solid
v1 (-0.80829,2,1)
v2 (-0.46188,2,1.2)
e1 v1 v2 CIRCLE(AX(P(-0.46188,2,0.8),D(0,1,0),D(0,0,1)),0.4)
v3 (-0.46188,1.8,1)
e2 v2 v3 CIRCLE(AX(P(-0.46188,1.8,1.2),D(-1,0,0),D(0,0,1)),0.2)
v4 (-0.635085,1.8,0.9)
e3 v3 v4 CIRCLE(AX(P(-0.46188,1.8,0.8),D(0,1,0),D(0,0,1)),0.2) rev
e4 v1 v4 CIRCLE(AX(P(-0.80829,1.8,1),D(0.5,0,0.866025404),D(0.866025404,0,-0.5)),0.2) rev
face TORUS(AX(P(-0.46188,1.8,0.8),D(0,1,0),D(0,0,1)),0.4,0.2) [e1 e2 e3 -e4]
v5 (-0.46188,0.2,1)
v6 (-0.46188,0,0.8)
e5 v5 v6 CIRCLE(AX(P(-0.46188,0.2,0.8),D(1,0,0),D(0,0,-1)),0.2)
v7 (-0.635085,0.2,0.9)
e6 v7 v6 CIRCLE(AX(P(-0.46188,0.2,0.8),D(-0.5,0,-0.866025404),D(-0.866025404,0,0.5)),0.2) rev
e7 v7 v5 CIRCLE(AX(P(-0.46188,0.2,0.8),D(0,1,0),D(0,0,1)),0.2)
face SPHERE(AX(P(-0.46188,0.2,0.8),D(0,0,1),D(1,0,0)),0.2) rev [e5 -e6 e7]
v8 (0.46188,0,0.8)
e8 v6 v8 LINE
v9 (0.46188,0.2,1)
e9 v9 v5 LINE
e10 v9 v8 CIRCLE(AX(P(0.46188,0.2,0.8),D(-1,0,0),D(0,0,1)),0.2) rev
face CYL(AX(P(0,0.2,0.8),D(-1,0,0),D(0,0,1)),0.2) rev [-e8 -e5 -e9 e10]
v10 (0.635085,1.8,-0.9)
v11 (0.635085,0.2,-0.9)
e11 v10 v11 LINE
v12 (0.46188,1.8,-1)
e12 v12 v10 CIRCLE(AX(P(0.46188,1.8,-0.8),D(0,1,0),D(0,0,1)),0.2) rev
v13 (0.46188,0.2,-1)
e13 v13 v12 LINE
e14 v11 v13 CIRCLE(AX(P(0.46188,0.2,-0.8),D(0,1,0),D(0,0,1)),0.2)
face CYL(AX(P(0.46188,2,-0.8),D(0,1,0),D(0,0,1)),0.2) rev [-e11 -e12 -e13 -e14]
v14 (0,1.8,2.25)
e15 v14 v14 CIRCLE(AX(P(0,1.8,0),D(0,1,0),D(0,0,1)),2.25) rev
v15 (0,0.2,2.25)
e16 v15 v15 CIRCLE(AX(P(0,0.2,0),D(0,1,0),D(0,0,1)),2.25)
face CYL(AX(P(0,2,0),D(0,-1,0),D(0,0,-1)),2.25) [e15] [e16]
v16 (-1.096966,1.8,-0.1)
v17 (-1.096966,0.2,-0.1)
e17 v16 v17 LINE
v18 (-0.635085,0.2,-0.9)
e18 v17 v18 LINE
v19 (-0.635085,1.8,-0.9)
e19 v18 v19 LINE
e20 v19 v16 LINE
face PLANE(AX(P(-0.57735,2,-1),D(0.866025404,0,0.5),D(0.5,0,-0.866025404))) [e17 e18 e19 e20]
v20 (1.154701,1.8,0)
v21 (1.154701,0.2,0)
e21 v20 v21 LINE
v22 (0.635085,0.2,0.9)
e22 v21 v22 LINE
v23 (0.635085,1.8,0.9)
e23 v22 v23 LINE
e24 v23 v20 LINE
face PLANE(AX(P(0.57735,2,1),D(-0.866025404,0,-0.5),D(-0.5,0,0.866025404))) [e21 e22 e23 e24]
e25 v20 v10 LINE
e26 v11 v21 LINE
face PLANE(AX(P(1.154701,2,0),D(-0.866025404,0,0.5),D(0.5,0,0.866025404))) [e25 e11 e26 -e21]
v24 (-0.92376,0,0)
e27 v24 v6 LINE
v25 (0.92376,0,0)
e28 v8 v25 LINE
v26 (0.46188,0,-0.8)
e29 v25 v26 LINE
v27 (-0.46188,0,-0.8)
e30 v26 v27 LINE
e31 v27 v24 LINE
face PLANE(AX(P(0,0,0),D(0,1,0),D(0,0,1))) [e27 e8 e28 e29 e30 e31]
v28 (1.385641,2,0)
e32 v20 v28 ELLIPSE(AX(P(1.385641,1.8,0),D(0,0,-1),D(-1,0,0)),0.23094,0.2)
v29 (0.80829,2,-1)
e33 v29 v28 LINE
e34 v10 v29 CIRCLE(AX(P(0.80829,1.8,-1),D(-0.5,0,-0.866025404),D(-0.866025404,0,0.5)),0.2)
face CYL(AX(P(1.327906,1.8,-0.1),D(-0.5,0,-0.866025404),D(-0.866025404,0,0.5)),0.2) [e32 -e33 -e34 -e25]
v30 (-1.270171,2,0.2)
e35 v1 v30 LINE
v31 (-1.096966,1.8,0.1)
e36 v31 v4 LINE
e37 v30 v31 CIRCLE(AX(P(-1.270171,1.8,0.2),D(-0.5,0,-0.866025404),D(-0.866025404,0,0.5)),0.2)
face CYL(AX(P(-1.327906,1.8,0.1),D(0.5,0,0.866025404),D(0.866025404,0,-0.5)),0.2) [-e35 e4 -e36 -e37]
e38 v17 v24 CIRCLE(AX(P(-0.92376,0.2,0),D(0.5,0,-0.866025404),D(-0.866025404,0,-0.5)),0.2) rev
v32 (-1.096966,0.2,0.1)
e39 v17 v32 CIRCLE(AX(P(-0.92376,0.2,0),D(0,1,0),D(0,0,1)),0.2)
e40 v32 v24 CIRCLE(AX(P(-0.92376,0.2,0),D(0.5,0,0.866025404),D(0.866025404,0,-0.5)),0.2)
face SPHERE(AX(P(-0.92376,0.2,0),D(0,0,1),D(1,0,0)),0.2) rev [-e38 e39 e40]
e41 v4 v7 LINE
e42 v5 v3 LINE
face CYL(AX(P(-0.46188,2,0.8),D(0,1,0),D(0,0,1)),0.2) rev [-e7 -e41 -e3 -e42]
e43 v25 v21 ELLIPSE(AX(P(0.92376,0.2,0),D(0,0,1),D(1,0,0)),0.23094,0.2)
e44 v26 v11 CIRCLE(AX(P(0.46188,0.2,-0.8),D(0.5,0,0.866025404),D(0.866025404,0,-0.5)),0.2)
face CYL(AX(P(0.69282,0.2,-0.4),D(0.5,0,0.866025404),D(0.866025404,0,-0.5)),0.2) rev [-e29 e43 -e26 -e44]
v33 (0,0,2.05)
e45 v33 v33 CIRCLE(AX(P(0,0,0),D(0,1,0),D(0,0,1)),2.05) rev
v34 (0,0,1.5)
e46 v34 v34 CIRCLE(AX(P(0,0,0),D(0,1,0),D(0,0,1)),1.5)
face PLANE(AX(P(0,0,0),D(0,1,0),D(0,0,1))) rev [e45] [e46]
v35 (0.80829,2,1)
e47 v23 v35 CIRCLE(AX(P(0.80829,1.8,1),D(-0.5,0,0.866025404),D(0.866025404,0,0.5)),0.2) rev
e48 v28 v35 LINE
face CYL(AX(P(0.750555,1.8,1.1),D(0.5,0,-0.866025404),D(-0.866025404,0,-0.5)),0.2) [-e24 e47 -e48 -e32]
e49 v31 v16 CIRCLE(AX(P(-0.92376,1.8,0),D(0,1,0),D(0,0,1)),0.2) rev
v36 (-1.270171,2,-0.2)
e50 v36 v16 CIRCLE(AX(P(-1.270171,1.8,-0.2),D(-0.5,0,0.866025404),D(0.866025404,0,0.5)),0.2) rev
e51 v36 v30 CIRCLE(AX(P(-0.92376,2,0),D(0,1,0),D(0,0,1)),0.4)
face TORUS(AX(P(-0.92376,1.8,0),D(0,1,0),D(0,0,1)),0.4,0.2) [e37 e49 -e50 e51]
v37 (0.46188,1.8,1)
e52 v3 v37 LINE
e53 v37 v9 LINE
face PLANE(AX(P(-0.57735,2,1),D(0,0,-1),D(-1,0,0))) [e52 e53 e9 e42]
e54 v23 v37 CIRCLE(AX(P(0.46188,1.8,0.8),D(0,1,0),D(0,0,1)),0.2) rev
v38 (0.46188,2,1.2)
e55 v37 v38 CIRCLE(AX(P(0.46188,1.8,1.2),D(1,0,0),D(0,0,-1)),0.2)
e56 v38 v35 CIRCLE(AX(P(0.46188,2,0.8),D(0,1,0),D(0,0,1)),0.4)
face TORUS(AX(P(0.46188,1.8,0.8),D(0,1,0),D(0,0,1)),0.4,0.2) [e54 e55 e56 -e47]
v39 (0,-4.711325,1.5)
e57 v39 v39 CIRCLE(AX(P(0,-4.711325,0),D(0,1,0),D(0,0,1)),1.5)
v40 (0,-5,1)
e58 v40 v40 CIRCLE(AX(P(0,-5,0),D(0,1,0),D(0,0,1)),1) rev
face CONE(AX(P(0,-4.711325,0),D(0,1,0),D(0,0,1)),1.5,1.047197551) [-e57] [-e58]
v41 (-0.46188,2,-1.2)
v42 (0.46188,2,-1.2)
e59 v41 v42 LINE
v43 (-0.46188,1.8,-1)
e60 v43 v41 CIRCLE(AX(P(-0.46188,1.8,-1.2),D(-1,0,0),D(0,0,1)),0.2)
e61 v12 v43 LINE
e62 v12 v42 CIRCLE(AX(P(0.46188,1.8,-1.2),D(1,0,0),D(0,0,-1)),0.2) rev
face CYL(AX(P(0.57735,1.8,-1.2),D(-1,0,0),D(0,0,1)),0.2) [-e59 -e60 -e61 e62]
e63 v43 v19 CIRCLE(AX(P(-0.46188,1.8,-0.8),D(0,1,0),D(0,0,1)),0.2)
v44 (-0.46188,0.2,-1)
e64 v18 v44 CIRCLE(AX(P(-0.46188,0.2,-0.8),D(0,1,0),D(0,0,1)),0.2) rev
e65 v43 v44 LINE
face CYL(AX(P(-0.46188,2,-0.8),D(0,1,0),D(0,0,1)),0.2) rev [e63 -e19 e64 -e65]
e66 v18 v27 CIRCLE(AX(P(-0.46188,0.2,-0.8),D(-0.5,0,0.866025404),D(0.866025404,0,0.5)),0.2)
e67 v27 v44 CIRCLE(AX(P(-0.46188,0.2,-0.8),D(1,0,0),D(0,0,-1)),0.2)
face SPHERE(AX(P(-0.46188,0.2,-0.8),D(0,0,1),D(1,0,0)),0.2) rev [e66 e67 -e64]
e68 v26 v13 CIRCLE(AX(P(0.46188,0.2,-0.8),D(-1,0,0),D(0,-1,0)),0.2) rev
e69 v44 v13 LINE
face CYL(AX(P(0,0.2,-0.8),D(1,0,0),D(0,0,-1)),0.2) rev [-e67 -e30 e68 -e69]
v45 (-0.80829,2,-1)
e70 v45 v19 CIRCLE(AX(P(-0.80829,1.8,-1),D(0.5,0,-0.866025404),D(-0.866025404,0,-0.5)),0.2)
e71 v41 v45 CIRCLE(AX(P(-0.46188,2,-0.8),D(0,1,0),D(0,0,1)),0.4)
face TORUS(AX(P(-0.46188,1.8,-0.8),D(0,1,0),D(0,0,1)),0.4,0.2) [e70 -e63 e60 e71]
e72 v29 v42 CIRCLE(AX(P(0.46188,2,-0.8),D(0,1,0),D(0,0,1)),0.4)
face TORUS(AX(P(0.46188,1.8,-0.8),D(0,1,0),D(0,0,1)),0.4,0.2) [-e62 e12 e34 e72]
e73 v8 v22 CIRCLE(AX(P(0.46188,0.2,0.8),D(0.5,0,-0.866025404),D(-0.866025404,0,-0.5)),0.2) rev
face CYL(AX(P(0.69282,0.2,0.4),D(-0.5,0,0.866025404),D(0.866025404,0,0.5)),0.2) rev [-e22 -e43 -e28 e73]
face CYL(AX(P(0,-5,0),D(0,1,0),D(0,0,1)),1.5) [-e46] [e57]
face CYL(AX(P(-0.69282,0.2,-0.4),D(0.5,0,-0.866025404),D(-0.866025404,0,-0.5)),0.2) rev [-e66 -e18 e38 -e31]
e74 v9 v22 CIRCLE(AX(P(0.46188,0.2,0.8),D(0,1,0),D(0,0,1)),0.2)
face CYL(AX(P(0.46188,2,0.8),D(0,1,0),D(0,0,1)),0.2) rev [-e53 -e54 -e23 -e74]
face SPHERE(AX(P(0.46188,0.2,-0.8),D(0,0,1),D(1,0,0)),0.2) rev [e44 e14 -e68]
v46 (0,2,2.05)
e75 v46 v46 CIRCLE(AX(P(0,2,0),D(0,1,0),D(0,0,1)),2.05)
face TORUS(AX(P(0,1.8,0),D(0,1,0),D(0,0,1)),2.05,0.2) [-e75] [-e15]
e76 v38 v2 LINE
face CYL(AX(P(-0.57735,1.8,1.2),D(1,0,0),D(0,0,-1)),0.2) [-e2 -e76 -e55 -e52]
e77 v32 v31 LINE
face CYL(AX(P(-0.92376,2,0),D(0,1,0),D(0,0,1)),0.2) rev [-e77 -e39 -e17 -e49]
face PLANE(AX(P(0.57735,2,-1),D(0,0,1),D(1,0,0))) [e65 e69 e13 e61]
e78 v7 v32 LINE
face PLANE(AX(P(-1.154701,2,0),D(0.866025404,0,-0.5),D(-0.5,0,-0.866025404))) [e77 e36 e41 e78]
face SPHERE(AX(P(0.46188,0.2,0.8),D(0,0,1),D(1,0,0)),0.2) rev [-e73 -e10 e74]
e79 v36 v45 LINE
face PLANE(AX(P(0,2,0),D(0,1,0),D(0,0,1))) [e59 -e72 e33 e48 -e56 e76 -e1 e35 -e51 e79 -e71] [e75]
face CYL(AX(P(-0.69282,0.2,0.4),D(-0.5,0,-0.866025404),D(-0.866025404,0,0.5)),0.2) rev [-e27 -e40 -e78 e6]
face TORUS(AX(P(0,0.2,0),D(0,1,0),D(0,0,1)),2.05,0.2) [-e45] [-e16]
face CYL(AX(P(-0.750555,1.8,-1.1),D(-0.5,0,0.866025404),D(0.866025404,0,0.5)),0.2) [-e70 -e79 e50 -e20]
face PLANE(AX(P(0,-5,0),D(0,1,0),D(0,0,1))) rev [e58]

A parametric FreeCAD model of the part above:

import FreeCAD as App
import Part
import Sketcher
Q = App.Units.Quantity


def edges_at(feature, points):
    """Names of the edges that pass closest to the given points."""
    edges = feature.Shape.Edges
    near = lambda p: min(range(len(edges)), key=lambda i: edges[i].distToShape(Part.Vertex(*p))[0])
    return sorted({f"Edge{near(p) + 1}" for p in points})

doc = App.newDocument("Part")
body = doc.addObject("PartDesign::Body", "Body")

# Sketch on XZ plane
sketch1 = body.newObject("Sketcher::SketchObject", "Sketch")
sketch1.AttachmentSupport = (doc.getObject("XZ_Plane"), [""])
sketch1.MapMode = "FlatFace"
sketch1.addGeometry([
    Part.Circle(App.Vector(0, 0, 0), App.Vector(0, 0, 1), 2.2),  # 0
    Part.LineSegment(App.Vector(-1.2, 0, 0), App.Vector(-0.6, -1, 0)),  # 1
    Part.LineSegment(App.Vector(-0.6, -1, 0), App.Vector(0.6, -1, 0)),  # 2
    Part.LineSegment(App.Vector(0.6, -1, 0), App.Vector(1.2, 0, 0)),  # 3
    Part.LineSegment(App.Vector(1.2, 0, 0), App.Vector(0.6, 1, 0)),  # 4
    Part.LineSegment(App.Vector(0.6, 1, 0), App.Vector(-0.6, 1, 0)),  # 5
    Part.LineSegment(App.Vector(-0.6, 1, 0), App.Vector(-1.2, 0, 0)),  # 6
], False)
sketch1.addConstraint([
    Sketcher.Constraint("Coincident", 1, 2, 2, 1),
    Sketcher.Constraint("Coincident", 2, 2, 3, 1),
    Sketcher.Constraint("Coincident", 3, 2, 4, 1),
    Sketcher.Constraint("Coincident", 4, 2, 5, 1),
    Sketcher.Constraint("Coincident", 5, 2, 6, 1),
    Sketcher.Constraint("Coincident", 6, 2, 1, 1),
    Sketcher.Constraint("Horizontal", 2),
    Sketcher.Constraint("Horizontal", 5),
    Sketcher.Constraint("Coincident", 0, 3, -1, 1),
    Sketcher.Constraint("Symmetric", 1, 2, 4, 2, -1, 1),
    Sketcher.Constraint("Symmetric", 3, 2, 6, 2, -1, 1),
    Sketcher.Constraint("PointOnObject", 3, 2, -1),
    Sketcher.Constraint("Parallel", 3, 6),
    Sketcher.Constraint("Vertical", 2, 2, 4, 2),
    Sketcher.Constraint("Diameter", 0, 4.5),
    Sketcher.Constraint("Angle", 1, Q("-60 deg")),
    Sketcher.Constraint("DistanceY", 1, 2, -1, 1, 1.0),
    Sketcher.Constraint("DistanceX", 2, 1, 2, 2, 1.154701),
])
pad1 = body.newObject("PartDesign::Pad", "Pad")
pad1.Profile = sketch1
pad1.Length = 2
pad1.Reversed = True

# Sketch on XZ plane
sketch2 = body.newObject("Sketcher::SketchObject", "Sketch001")
sketch2.AttachmentSupport = (doc.getObject("XZ_Plane"), [""])
sketch2.MapMode = "FlatFace"
sketch2.addGeometry(Part.Circle(App.Vector(0, 0, 0), App.Vector(0, 0, 1), 1.5), False)
sketch2.addConstraint([
    Sketcher.Constraint("Coincident", 0, 3, -1, 1),
    Sketcher.Constraint("Diameter", 0, 3.0),
])
pad2 = body.newObject("PartDesign::Pad", "Pad001")
pad2.Profile = sketch2
pad2.Length = 5
doc.recompute()

chamfer = body.newObject("PartDesign::Chamfer", "Chamfer")
chamfer.Base = (pad2, edges_at(pad2, [(0, -5, -1.5)]))
chamfer.ChamferType = "Two distances"
chamfer.Size = 0.5
chamfer.Size2 = 0.288675
chamfer.FlipDirection = True
doc.recompute()

fillet = body.newObject("PartDesign::Fillet", "Fillet")
fillet.Base = (chamfer, edges_at(chamfer, [
    (-0.577, 1, -1),
    (-0.866, 0, 0.5),
    (-1.155, 1, 0),
    (0, 0, 1),
    (-0.577, 1, 1),
    (0.866, 0, 0.5),
    (0.577, 1, 1),
    (0.866, 0, -0.5),
    (0, 2, -1),
    (-0.866, 2, -0.5),
    (-0.866, 2, 0.5),
    (0, 2, 1),
    (0.866, 2, 0.5),
    (0.866, 2, -0.5),
    (0, 0, -2.25),
    (0, 2, -2.25),
    (0, 0, -1),
    (0.577, 1, -1),
    (-0.866, 0, -0.5),
]))
fillet.Radius = 0.2

doc.recompute()
